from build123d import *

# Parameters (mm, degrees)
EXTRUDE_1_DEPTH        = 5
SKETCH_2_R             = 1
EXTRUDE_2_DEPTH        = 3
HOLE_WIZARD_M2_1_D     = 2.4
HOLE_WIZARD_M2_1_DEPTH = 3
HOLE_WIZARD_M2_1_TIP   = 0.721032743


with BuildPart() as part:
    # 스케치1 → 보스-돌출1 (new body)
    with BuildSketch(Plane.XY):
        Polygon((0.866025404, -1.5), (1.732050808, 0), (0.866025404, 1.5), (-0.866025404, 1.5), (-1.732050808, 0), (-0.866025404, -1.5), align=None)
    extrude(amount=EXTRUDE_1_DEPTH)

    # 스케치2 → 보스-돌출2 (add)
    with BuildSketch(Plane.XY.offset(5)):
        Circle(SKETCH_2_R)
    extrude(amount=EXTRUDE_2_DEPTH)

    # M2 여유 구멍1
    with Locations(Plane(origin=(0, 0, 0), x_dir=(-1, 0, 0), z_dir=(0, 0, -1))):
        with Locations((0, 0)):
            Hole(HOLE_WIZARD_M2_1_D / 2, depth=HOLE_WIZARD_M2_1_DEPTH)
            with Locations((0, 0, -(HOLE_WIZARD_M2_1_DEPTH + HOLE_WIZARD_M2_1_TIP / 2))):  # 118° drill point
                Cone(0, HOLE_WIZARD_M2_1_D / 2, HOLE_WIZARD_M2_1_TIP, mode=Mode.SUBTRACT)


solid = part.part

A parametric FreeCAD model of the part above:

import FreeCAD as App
import Part
import Sketcher
from FreeCAD import Vector
Q = App.Units.Quantity

doc = App.newDocument("Part")
body = doc.addObject("PartDesign::Body", "Body")

# Sketch on XY plane
sketch1 = body.newObject("Sketcher::SketchObject", "Sketch")
sketch1.AttachmentSupport = (doc.getObject("XY_Plane"), [""])
sketch1.MapMode = "FlatFace"
sketch1.addGeometry([
    Part.LineSegment(Vector(0.9, -1.5, 0), Vector(1.7, 0, 0)),  # 0
    Part.LineSegment(Vector(1.7, 0, 0), Vector(0.9, 1.5, 0)),  # 1
    Part.LineSegment(Vector(0.9, 1.5, 0), Vector(-0.9, 1.5, 0)),  # 2
    Part.LineSegment(Vector(-0.9, 1.5, 0), Vector(-1.7, 0, 0)),  # 3
    Part.LineSegment(Vector(-1.7, 0, 0), Vector(-0.9, -1.5, 0)),  # 4
    Part.LineSegment(Vector(-0.9, -1.5, 0), Vector(0.9, -1.5, 0)),  # 5
], False)
sketch1.addConstraint([
    Sketcher.Constraint("Coincident", 0, 2, 1, 1),
    Sketcher.Constraint("Coincident", 1, 2, 2, 1),
    Sketcher.Constraint("Coincident", 2, 2, 3, 1),
    Sketcher.Constraint("Coincident", 3, 2, 4, 1),
    Sketcher.Constraint("Coincident", 4, 2, 5, 1),
    Sketcher.Constraint("Coincident", 5, 2, 0, 1),
    Sketcher.Constraint("Horizontal", 2),
    Sketcher.Constraint("Horizontal", 5),
    Sketcher.Constraint("Symmetric", 0, 2, 3, 2, -1, 1),
    Sketcher.Constraint("Symmetric", 1, 2, 4, 2, -1, 1),
    Sketcher.Constraint("PointOnObject", 0, 2, -1),
    Sketcher.Constraint("Parallel", 0, 3),
    Sketcher.Constraint("Vertical", 2, 2, 4, 2),
    Sketcher.Constraint("Angle", 0, Q("60 deg")),
    Sketcher.Constraint("DistanceY", 4, 2, 2, 2, Q("3 mm")),
    Sketcher.Constraint("DistanceX", 2, 2, 2, 1, Q("1.732051 mm")),
])
pad1 = body.newObject("PartDesign::Pad", "Pad")
pad1.Profile = sketch1
pad1.Length = 5

# Sketch on XY plane
sketch2 = body.newObject("Sketcher::SketchObject", "Sketch001")
sketch2.AttachmentSupport = (doc.getObject("XY_Plane"), [""])
sketch2.MapMode = "FlatFace"
sketch2.AttachmentOffset = App.Placement(Vector(0, 0, 5), App.Rotation())
sketch2.addGeometry(Part.Circle(Vector(0, 0, 0), Vector(0, 0, 1), 1), False)
sketch2.addConstraint([
    Sketcher.Constraint("Coincident", 0, 3, -1, 1),
    Sketcher.Constraint("Diameter", 0, Q("2 mm")),
])
pad2 = body.newObject("PartDesign::Pad", "Pad001")
pad2.Profile = sketch2
pad2.Length = 3

# Sketch on XY plane
sketch3 = body.newObject("Sketcher::SketchObject", "Sketch002")
sketch3.AttachmentSupport = (doc.getObject("XY_Plane"), [""])
sketch3.MapMode = "FlatFace"
sketch3.addGeometry(Part.Circle(Vector(0, 0, 0), Vector(0, 0, 1), 1.2), False)
sketch3.addConstraint([
    Sketcher.Constraint("Coincident", 0, 3, -1, 1),
    Sketcher.Constraint("Diameter", 0, Q("2.4 mm")),
])
doc.recompute()
hole = body.newObject("PartDesign::Hole", "Hole")
hole.Profile = sketch3
hole.ThreadType = "None"
hole.Diameter = 2.4
hole.DepthType = "Dimension"
hole.Depth = 3
hole.DrillPoint = "Angled"
hole.DrillPointAngle = 118
hole.Reversed = True

doc.recompute()
